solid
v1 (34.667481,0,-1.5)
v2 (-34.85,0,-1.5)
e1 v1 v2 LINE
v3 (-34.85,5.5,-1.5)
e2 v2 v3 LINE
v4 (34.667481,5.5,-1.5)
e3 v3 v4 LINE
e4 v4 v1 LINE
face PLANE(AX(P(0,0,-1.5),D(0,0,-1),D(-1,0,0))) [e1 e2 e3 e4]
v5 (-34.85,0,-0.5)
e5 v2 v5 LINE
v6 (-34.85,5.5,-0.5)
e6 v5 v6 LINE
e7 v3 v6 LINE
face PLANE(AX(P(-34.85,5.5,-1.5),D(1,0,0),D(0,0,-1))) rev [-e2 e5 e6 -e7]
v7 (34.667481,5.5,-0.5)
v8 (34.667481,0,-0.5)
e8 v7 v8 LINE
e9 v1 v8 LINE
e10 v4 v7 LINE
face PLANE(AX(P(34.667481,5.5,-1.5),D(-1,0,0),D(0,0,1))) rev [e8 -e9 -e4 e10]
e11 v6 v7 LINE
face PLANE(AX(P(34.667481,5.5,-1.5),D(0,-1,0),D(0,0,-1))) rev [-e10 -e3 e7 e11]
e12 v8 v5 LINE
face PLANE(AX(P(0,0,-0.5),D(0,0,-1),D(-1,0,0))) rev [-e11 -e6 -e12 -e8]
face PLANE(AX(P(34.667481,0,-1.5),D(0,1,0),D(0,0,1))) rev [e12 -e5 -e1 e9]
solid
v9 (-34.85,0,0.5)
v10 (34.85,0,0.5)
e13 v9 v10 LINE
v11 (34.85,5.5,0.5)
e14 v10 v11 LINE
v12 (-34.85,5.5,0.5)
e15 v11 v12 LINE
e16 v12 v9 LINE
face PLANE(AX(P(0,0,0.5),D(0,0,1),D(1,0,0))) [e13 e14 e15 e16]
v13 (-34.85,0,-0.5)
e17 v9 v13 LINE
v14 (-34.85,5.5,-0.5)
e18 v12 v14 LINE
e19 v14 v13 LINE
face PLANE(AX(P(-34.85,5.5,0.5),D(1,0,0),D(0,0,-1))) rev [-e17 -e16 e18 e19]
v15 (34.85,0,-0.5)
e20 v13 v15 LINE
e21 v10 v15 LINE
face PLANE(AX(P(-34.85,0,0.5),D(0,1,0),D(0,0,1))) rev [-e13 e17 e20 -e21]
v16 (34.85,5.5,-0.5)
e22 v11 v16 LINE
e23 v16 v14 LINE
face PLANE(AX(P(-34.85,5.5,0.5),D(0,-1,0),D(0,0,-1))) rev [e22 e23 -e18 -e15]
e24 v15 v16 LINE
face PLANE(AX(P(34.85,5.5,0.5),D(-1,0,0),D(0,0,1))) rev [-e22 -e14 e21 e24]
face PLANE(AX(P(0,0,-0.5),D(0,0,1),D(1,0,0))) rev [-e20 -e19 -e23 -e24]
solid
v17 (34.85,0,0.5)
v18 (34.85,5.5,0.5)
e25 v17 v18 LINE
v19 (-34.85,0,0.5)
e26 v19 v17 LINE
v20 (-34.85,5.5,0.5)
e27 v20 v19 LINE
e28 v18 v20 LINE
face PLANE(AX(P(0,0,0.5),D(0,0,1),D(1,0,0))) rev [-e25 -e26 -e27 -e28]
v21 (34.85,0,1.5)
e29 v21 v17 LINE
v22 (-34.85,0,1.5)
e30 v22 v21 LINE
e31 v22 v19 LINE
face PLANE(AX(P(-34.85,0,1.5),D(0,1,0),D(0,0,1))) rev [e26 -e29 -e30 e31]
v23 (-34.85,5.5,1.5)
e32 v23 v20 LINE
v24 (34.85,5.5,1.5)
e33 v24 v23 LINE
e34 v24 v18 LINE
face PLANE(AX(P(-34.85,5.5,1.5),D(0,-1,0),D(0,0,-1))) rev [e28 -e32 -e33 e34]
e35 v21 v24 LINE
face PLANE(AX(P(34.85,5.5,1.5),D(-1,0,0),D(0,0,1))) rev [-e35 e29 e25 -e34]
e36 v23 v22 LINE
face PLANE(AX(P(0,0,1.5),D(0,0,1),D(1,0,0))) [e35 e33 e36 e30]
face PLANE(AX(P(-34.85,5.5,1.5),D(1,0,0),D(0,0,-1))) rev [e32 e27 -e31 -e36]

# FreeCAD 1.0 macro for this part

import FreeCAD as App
import Part
import Sketcher
Q = App.Units.Quantity

doc = App.newDocument("Part")
params = doc.addObject("Spreadsheet::Sheet", "Params")
for row, (alias, value) in enumerate([
    ("sketch1_width", "69.7 mm"),
    ("sketch1_height", "5.5 mm"),
    ("pad1_length", "1 mm"),
    ("sketch2_width", "69.7 mm"),
    ("sketch2_height", "5.5 mm"),
    ("pad2_length", "1 mm"),
    ("sketch3_height", "5.5 mm"),
    ("pad3_length", "1 mm"),
], start=1):
    params.set(f"A{row}", alias)
    params.set(f"B{row}", "=" + value)
    params.setAlias(f"B{row}", alias)

body = doc.addObject("PartDesign::Body", "Body")

# Sketch on XY plane
sketch1 = body.newObject("Sketcher::SketchObject", "Sketch")
sketch1.AttachmentSupport = (doc.getObject("XY_Plane"), [""])
sketch1.MapMode = "FlatFace"
sketch1.addGeometry([
    Part.LineSegment(App.Vector(-35, 6, 0), App.Vector(-35, 0, 0)),
    Part.LineSegment(App.Vector(-35, 0, 0), App.Vector(35, 0, 0)),
    Part.LineSegment(App.Vector(35, 0, 0), App.Vector(35, 6, 0)),
    Part.LineSegment(App.Vector(35, 6, 0), App.Vector(-35, 6, 0)),
], False)
sketch1.addConstraint([
    Sketcher.Constraint("Coincident", 0, 2, 1, 1),
    Sketcher.Constraint("Coincident", 1, 2, 2, 1),
    Sketcher.Constraint("Coincident", 2, 2, 3, 1),
    Sketcher.Constraint("Coincident", 3, 2, 0, 1),
    Sketcher.Constraint("Vertical", 0),
    Sketcher.Constraint("Horizontal", 1),
    Sketcher.Constraint("Vertical", 2),
    Sketcher.Constraint("Horizontal", 3),
    Sketcher.Constraint("Symmetric", 0, 2, 1, 2, -1, 1),
    Sketcher.Constraint("DistanceX", 1, 1, 1, 2, Q("69.7 mm")),
    Sketcher.Constraint("DistanceY", 0, 2, 0, 1, Q("5.5 mm")),
])
sketch1.setExpression("Constraints[9]", "Params.sketch1_width")
sketch1.setExpression("Constraints[10]", "Params.sketch1_height")
pad1 = body.newObject("PartDesign::Pad", "Pad")
pad1.Profile = sketch1
pad1.setExpression("Length", "Params.pad1_length")
pad1.Midplane = True
body2 = doc.addObject("PartDesign::Body", "Body001")

# Sketch on XY plane
sketch2 = body2.newObject("Sketcher::SketchObject", "Sketch001")
sketch2.AttachmentSupport = (doc.getObject("XY_Plane001"), [""])
sketch2.MapMode = "FlatFace"
sketch2.AttachmentOffset = App.Placement(App.Vector(0, 0, 0.5), App.Rotation())
sketch2.addGeometry([
    Part.LineSegment(App.Vector(-35, 6, 0), App.Vector(-35, 0, 0)),
    Part.LineSegment(App.Vector(-35, 0, 0), App.Vector(35, 0, 0)),
    Part.LineSegment(App.Vector(35, 0, 0), App.Vector(35, 6, 0)),
    Part.LineSegment(App.Vector(35, 6, 0), App.Vector(-35, 6, 0)),
], False)
sketch2.addConstraint([
    Sketcher.Constraint("Coincident", 0, 2, 1, 1),
    Sketcher.Constraint("Coincident", 1, 2, 2, 1),
    Sketcher.Constraint("Coincident", 2, 2, 3, 1),
    Sketcher.Constraint("Coincident", 3, 2, 0, 1),
    Sketcher.Constraint("Vertical", 0),
    Sketcher.Constraint("Horizontal", 1),
    Sketcher.Constraint("Vertical", 2),
    Sketcher.Constraint("Horizontal", 3),
    Sketcher.Constraint("Symmetric", 0, 2, 1, 2, -1, 1),
    Sketcher.Constraint("DistanceX", 1, 1, 1, 2, Q("69.7 mm")),
    Sketcher.Constraint("DistanceY", 0, 2, 0, 1, Q("5.5 mm")),
])
sketch2.setExpression("Constraints[9]", "Params.sketch2_width")
sketch2.setExpression("Constraints[10]", "Params.sketch2_height")
pad2 = body2.newObject("PartDesign::Pad", "Pad001")
pad2.Profile = sketch2
pad2.setExpression("Length", "Params.pad2_length")
body3 = doc.addObject("PartDesign::Body", "Body002")

# Sketch on XY plane
sketch3 = body3.newObject("Sketcher::SketchObject", "Sketch002")
sketch3.AttachmentSupport = (doc.getObject("XY_Plane002"), [""])
sketch3.MapMode = "FlatFace"
sketch3.AttachmentOffset = App.Placement(App.Vector(0, 0, -0.5), App.Rotation())
sketch3.addGeometry([
    Part.LineSegment(App.Vector(35, 6, 0), App.Vector(35, 0, 0)),
    Part.LineSegment(App.Vector(35, 0, 0), App.Vector(-35, 0, 0)),
    Part.LineSegment(App.Vector(-35, 0, 0), App.Vector(-35, 6, 0)),
    Part.LineSegment(App.Vector(-35, 6, 0), App.Vector(35, 6, 0)),
], False)
sketch3.addConstraint([
    Sketcher.Constraint("Coincident", 0, 2, 1, 1),
    Sketcher.Constraint("Coincident", 1, 2, 2, 1),
    Sketcher.Constraint("Coincident", 2, 2, 3, 1),
    Sketcher.Constraint("Coincident", 3, 2, 0, 1),
    Sketcher.Constraint("Vertical", 0),
    Sketcher.Constraint("Horizontal", 1),
    Sketcher.Constraint("Vertical", 2),
    Sketcher.Constraint("Horizontal", 3),
    Sketcher.Constraint("PointOnObject", 0, 2, -1),
    Sketcher.Constraint("DistanceY", 0, 2, 0, 1, Q("5.5 mm")),
    Sketcher.Constraint("DistanceX", 1, 2, -1, 1, Q("34.85 mm")),
    Sketcher.Constraint("DistanceX", 1, 2, 1, 1, Q("69.517481 mm")),
])
sketch3.setExpression("Constraints[9]", "Params.sketch3_height")
pad3 = body3.newObject("PartDesign::Pad", "Pad002")
pad3.Profile = sketch3
pad3.setExpression("Length", "Params.pad3_length")
pad3.Reversed = True

doc.recompute()
